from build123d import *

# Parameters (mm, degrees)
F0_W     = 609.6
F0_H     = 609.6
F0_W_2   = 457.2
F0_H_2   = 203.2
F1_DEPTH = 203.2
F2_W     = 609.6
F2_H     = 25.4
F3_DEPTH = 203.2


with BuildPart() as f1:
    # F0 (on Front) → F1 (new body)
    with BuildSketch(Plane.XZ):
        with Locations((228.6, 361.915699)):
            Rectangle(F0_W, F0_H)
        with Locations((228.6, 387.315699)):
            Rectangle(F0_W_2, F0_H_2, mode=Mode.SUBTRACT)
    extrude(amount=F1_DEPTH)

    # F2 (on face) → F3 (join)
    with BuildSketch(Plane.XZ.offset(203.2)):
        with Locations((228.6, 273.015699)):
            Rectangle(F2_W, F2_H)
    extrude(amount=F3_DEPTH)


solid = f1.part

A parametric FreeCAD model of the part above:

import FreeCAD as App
import Part
import Sketcher

V = App.Vector
Q = App.Units.Quantity


def add_polygon(sketch, points):
    """Adds a closed chain of lines whose ends are joined by coincident constraints."""
    first, n = sketch.GeometryCount, len(points)
    for a, b in zip(points, points[1:] + points[:1]):
        sketch.addGeometry(Part.LineSegment(App.Vector(*a, 0), App.Vector(*b, 0)), False)
    for i in range(n):
        sketch.addConstraint(Sketcher.Constraint("Coincident", first + i, 2, first + (i + 1) % n, 1))

doc = App.newDocument("Part")
params = doc.addObject("Spreadsheet::Sheet", "Params")
for row, (alias, value) in enumerate([
    ("sketch1_width", "24 in"),
    ("sketch1_width2", "18 in"),
    ("sketch1_height", "8 in"),
    ("pad1_length", "8 in"),
    ("sketch2_width", "24 in"),
    ("sketch2_height", "1 in"),
    ("pad2_length", "8 in"),
], start=1):
    params.set(f"A{row}", alias)
    params.set(f"B{row}", "=" + value)
    params.setAlias(f"B{row}", alias)

body = doc.addObject("PartDesign::Body", "Body")

# Sketch on XZ plane
sketch1 = doc.addObject("Sketcher::SketchObject", "Sketch")
body.addObject(sketch1)
sketch1.AttachmentSupport = (doc.XZ_Plane, [""])
sketch1.MapMode = "FlatFace"
add_polygon(sketch1, [(-76.2, 666.715699), (-76.2, 57.115699), (533.4, 57.115699), (533.4, 666.715699)])  # lines 0-3
add_polygon(sketch1, [(457.2, 285.715699), (0, 285.715699), (0, 488.915699), (457.2, 488.915699)])  # lines 4-7
sketch1.addConstraint(Sketcher.Constraint("Vertical", 0))
sketch1.addConstraint(Sketcher.Constraint("Horizontal", 1))
sketch1.addConstraint(Sketcher.Constraint("Vertical", 2))
sketch1.addConstraint(Sketcher.Constraint("Horizontal", 3))
sketch1.addConstraint(Sketcher.Constraint("Horizontal", 4))
sketch1.addConstraint(Sketcher.Constraint("Vertical", 5))
sketch1.addConstraint(Sketcher.Constraint("Horizontal", 6))
sketch1.addConstraint(Sketcher.Constraint("Vertical", 7))
sketch1.addConstraint(Sketcher.Constraint("PointOnObject", 4, 2, -2))
sketch1.addConstraint(Sketcher.Constraint("Equal", 3, 0))
sketch1.addConstraint(Sketcher.Constraint("DistanceX", 1, 1, 1, 2, Q("24 in")))
sketch1.addConstraint(Sketcher.Constraint("DistanceX", 4, 2, 4, 1, Q("18 in")))
sketch1.addConstraint(Sketcher.Constraint("DistanceY", 5, 1, 5, 2, Q("8 in")))
sketch1.addConstraint(Sketcher.Constraint("DistanceX", 0, 2, -1, 1, Q("3 in")))
sketch1.addConstraint(Sketcher.Constraint("DistanceY", 0, 2, 4, 2, Q("9 in")))
sketch1.addConstraint(Sketcher.Constraint("DistanceY", -1, 1, 0, 2, Q("57.115699 mm")))
sketch1.setExpression("Constraints[18]", "Params.sketch1_width")
sketch1.setExpression("Constraints[19]", "Params.sketch1_width2")
sketch1.setExpression("Constraints[20]", "Params.sketch1_height")
pad1 = doc.addObject("PartDesign::Pad", "Pad")
body.addObject(pad1)
pad1.Profile = sketch1
pad1.setExpression("Length", "Params.pad1_length")

# Sketch on XZ plane
sketch2 = doc.addObject("Sketcher::SketchObject", "Sketch001")
body.addObject(sketch2)
sketch2.AttachmentSupport = (doc.XZ_Plane, [""])
sketch2.MapMode = "FlatFace"
sketch2.AttachmentOffset = App.Placement(V(0, 0, 8 * 25.4), App.Rotation())
add_polygon(sketch2, [(-76.2, 285.715699), (-76.2, 260.315699), (533.4, 260.315699), (533.4, 285.715699)])  # lines 0-3
sketch2.addConstraint(Sketcher.Constraint("Vertical", 0))
sketch2.addConstraint(Sketcher.Constraint("Horizontal", 1))
sketch2.addConstraint(Sketcher.Constraint("Vertical", 2))
sketch2.addConstraint(Sketcher.Constraint("Horizontal", 3))
sketch2.addConstraint(Sketcher.Constraint("DistanceX", 1, 1, 1, 2, Q("24 in")))
sketch2.addConstraint(Sketcher.Constraint("DistanceY", 0, 2, 0, 1, Q("1 in")))
sketch2.addConstraint(Sketcher.Constraint("DistanceX", 0, 2, -1, 1, Q("3 in")))
sketch2.addConstraint(Sketcher.Constraint("DistanceY", -1, 1, 0, 2, Q("260.315699 mm")))
sketch2.setExpression("Constraints[8]", "Params.sketch2_width")
sketch2.setExpression("Constraints[9]", "Params.sketch2_height")
pad2 = doc.addObject("PartDesign::Pad", "Pad001")
body.addObject(pad2)
pad2.Profile = sketch2
pad2.setExpression("Length", "Params.pad2_length")

doc.recompute()
